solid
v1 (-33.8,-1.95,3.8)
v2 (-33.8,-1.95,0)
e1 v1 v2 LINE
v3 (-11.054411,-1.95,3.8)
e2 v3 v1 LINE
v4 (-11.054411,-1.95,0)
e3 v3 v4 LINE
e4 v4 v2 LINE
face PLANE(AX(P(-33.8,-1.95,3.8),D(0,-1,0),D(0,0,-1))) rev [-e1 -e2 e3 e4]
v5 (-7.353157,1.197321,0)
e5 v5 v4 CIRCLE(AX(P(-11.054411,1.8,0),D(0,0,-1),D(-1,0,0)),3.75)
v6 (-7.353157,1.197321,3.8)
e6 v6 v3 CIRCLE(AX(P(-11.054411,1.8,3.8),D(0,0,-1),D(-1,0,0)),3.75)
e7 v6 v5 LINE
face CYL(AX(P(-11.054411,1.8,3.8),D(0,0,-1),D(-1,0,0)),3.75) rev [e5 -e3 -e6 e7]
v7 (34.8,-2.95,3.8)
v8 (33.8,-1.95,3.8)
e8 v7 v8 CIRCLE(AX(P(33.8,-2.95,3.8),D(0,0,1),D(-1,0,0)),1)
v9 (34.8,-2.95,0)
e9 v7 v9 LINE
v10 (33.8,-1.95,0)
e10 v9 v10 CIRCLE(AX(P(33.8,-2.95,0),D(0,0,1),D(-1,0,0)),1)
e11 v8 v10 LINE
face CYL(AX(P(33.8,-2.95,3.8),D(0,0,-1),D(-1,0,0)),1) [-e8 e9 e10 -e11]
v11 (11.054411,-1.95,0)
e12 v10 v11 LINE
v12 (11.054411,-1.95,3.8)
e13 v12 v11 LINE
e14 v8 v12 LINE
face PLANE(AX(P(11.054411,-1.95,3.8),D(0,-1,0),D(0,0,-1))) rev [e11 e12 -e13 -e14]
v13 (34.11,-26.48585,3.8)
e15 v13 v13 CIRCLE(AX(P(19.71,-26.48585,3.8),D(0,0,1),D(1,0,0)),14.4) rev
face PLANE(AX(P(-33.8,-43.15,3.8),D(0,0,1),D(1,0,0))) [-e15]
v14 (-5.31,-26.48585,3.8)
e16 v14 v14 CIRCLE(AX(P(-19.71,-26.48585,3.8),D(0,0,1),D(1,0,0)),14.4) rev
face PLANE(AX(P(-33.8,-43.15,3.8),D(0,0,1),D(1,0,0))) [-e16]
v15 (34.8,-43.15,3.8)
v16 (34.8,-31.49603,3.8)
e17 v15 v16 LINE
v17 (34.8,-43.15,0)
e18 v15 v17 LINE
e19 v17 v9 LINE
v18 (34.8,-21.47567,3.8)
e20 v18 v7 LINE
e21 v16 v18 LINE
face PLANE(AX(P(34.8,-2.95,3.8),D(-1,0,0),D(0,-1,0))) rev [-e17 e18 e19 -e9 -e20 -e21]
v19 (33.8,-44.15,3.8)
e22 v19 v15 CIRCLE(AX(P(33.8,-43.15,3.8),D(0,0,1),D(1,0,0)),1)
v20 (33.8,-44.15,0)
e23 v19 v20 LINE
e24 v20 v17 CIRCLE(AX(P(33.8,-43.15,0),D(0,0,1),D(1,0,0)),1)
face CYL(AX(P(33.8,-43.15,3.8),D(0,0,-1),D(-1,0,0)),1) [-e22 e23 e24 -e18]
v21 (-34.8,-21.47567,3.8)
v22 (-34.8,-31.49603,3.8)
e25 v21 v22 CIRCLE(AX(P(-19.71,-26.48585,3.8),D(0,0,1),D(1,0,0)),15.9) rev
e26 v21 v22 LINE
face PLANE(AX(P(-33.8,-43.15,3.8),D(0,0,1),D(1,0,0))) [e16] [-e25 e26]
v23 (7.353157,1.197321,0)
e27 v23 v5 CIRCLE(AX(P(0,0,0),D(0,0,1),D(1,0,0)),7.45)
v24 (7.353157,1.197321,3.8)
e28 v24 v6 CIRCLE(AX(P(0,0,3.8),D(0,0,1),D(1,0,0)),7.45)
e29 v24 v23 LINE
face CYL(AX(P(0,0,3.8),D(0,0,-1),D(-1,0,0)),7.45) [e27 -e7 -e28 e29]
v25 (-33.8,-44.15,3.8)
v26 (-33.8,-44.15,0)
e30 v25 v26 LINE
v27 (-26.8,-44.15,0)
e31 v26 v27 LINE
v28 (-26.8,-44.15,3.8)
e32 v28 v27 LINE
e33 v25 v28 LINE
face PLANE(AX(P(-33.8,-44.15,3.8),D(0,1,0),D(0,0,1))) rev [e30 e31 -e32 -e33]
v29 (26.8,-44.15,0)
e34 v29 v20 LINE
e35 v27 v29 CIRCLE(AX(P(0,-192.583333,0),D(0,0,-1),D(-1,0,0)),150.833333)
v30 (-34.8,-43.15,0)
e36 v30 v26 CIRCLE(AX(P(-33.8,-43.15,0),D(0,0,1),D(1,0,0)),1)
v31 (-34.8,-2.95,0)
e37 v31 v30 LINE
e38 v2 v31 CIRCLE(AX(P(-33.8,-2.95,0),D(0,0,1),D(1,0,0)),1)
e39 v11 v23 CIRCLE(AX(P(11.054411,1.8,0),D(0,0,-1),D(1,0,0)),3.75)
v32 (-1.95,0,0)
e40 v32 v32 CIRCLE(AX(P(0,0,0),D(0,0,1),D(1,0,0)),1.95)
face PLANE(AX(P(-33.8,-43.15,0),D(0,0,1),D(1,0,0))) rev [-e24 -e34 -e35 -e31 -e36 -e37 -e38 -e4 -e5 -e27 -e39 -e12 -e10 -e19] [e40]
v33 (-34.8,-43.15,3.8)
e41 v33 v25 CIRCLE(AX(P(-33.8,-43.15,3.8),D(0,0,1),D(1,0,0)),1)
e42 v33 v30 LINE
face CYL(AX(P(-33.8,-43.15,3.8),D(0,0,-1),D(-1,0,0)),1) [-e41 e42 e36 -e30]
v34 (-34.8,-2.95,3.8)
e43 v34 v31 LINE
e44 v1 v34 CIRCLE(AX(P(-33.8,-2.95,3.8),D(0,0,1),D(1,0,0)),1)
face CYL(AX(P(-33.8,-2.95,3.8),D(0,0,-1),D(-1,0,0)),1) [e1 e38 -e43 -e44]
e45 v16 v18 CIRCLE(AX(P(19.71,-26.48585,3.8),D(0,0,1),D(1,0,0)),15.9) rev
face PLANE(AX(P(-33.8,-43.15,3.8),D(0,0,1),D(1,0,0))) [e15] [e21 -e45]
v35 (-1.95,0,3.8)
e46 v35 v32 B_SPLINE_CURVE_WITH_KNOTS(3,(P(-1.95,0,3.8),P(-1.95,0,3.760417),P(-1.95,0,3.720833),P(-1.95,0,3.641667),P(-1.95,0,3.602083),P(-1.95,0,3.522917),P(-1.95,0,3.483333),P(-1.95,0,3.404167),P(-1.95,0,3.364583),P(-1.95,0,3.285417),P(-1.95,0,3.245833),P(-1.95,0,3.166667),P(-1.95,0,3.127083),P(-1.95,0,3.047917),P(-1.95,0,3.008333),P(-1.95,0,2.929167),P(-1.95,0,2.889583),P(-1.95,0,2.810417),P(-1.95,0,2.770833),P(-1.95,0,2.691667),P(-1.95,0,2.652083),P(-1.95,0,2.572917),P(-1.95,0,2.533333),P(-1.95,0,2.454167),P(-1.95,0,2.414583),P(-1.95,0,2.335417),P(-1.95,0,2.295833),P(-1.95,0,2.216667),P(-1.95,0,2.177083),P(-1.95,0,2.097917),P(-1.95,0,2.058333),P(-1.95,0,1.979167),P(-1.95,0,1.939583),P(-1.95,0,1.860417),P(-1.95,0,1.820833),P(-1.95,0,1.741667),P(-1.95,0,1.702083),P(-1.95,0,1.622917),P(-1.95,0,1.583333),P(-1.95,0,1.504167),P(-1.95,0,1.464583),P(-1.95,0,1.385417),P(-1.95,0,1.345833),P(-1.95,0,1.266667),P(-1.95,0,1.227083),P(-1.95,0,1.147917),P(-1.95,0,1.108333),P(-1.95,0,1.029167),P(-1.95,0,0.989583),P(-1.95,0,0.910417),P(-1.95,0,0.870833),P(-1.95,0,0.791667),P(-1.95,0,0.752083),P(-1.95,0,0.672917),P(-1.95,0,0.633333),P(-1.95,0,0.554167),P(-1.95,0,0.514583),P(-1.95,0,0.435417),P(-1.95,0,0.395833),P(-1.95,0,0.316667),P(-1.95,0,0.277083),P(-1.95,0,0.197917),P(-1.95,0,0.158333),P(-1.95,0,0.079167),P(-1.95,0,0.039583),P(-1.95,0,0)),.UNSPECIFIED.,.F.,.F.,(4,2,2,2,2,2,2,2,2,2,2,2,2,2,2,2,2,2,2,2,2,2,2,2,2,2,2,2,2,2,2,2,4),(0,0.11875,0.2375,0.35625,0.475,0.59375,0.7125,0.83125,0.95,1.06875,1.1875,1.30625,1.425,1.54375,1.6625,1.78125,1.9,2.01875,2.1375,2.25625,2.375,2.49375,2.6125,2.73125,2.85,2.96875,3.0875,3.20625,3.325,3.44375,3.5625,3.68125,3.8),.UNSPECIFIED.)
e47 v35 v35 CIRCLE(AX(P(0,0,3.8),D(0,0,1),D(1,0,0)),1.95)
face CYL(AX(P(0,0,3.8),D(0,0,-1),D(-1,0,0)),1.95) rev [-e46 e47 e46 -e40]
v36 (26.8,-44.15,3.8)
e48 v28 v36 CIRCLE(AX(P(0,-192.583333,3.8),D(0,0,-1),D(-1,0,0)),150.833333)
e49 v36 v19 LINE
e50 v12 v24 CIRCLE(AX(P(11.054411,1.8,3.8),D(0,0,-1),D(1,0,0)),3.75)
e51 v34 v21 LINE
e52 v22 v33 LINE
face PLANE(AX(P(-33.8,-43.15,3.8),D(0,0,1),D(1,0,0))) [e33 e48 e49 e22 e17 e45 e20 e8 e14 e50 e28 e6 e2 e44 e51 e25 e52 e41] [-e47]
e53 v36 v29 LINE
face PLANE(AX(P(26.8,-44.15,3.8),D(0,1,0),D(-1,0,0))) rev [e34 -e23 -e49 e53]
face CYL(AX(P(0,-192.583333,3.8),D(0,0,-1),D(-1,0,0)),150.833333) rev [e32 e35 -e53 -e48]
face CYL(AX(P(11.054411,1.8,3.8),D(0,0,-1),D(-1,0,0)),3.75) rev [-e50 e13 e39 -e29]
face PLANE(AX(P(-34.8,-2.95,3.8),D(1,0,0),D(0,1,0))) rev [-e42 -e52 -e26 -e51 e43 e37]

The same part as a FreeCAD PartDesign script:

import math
import FreeCAD as App
import Part
import Sketcher

doc = App.newDocument("Part")
params = doc.addObject("Spreadsheet::Sheet", "Params")
for row, (alias, value) in enumerate([
    ("sketch1_radius", "1 mm"),
    ("sketch1_diameter", "3.9 mm"),
    ("sketch1_width", "7 mm"),
    ("sketch1_radius2", "3.75 mm"),
    ("sketch1_radius3", "7.45 mm"),
    ("pad1_length", "3.8 mm"),
], start=1):
    params.set(f"A{row}", alias)
    params.set(f"B{row}", "=" + value)
    params.setAlias(f"B{row}", alias)

body = doc.addObject("PartDesign::Body", "Body")

sketch1 = body.newObject("Sketcher::SketchObject", "Sketch")
sketch1.AttachmentSupport = (doc.getObject("XY_Plane"), [""])
sketch1.MapMode = "FlatFace"
sketch1.addGeometry([
    Part.LineSegment(App.Vector(26.8, -44.1, 0), App.Vector(33.8, -44.1, 0)),
    Part.ArcOfCircle(Part.Circle(App.Vector(33.8, -43.1, 0), App.Vector(0, 0, 1), 1), math.radians(-90), math.radians(0)),
    Part.LineSegment(App.Vector(34.8, -43.1, 0), App.Vector(34.8, -3, 0)),
    Part.ArcOfCircle(Part.Circle(App.Vector(33.8, -3, 0), App.Vector(0, 0, 1), 1), math.radians(0), math.radians(90)),
    Part.LineSegment(App.Vector(33.8, -1.9, 0), App.Vector(11.1, -1.9, 0)),
    Part.ArcOfCircle(Part.Circle(App.Vector(11.1, 1.8, 0), App.Vector(0, 0, 1), 3.8), math.radians(-171), math.radians(-90)),
    Part.ArcOfCircle(Part.Circle(App.Vector(0, 0, 0), App.Vector(0, 0, 1), 7.5), math.radians(9), math.radians(171)),
    Part.ArcOfCircle(Part.Circle(App.Vector(-11.1, 1.8, 0), App.Vector(0, 0, 1), 3.8), math.radians(-90), math.radians(-9)),
    Part.LineSegment(App.Vector(-11.1, -1.9, 0), App.Vector(-33.8, -1.9, 0)),
    Part.ArcOfCircle(Part.Circle(App.Vector(-33.8, -3, 0), App.Vector(0, 0, 1), 1), math.radians(90), math.radians(180)),
    Part.LineSegment(App.Vector(-34.8, -3, 0), App.Vector(-34.8, -43.1, 0)),
    Part.ArcOfCircle(Part.Circle(App.Vector(-33.8, -43.1, 0), App.Vector(0, 0, 1), 1), math.radians(-180), math.radians(-90)),
    Part.LineSegment(App.Vector(-33.8, -44.1, 0), App.Vector(-26.8, -44.1, 0)),
    Part.ArcOfCircle(Part.Circle(App.Vector(0, -192.6, 0), App.Vector(0, 0, 1), 150.8), math.radians(80), math.radians(100)),
    Part.Circle(App.Vector(0, 0, 0), App.Vector(0, 0, 1), 1.9),
], False)
sketch1.addConstraint([
    Sketcher.Constraint("Tangent", 0, 2, 1, 1),
    Sketcher.Constraint("Tangent", 1, 2, 2, 1),
    Sketcher.Constraint("Tangent", 2, 2, 3, 1),
    Sketcher.Constraint("Tangent", 3, 2, 4, 1),
    Sketcher.Constraint("Tangent", 4, 2, 5, 2),
    Sketcher.Constraint("Tangent", 5, 1, 6, 1),
    Sketcher.Constraint("Tangent", 6, 2, 7, 2),
    Sketcher.Constraint("Tangent", 7, 1, 8, 1),
    Sketcher.Constraint("Tangent", 8, 2, 9, 1),
    Sketcher.Constraint("Tangent", 9, 2, 10, 1),
    Sketcher.Constraint("Tangent", 10, 2, 11, 1),
    Sketcher.Constraint("Tangent", 11, 2, 12, 1),
    Sketcher.Constraint("Coincident", 12, 2, 13, 2),
    Sketcher.Constraint("Coincident", 13, 1, 0, 1),
    Sketcher.Constraint("Horizontal", 0),
    Sketcher.Constraint("Vertical", 2),
    Sketcher.Constraint("Horizontal", 4),
    Sketcher.Constraint("Horizontal", 8),
    Sketcher.Constraint("Vertical", 10),
    Sketcher.Constraint("Horizontal", 12),
    Sketcher.Constraint("Coincident", 6, 3, -1, 1),
    Sketcher.Constraint("Coincident", 14, 3, -1, 1),
    Sketcher.Constraint("Equal", 1, 3),
    Sketcher.Constraint("Equal", 5, 7),
    Sketcher.Constraint("Equal", 3, 9),
    Sketcher.Constraint("Equal", 9, 11),
    Sketcher.Constraint("Symmetric", 3, 3, 9, 3, -2),
    Sketcher.Constraint("Symmetric", 12, 2, 13, 1, -2),
    Sketcher.Constraint("Radius", 1, 1.0),
    Sketcher.Constraint("Diameter", 14, 3.9),
    Sketcher.Constraint("DistanceX", 0, 1, 0, 2, 7.0),
    Sketcher.Constraint("Radius", 5, 3.75),
    Sketcher.Constraint("Radius", 6, 7.45),
    Sketcher.Constraint("DistanceY", 2, 1, 2, 2, 40.2),
    Sketcher.Constraint("DistanceX", -1, 1, 1, 3, 33.8),
    Sketcher.Constraint("DistanceY", -1, 1, 5, 3, 1.8),
    Sketcher.Constraint("Radius", 13, 150.833333),
])
sketch1.setExpression("Constraints[28]", "Params.sketch1_radius")
sketch1.setExpression("Constraints[29]", "Params.sketch1_diameter")
sketch1.setExpression("Constraints[30]", "Params.sketch1_width")
sketch1.setExpression("Constraints[31]", "Params.sketch1_radius2")
sketch1.setExpression("Constraints[32]", "Params.sketch1_radius3")
pad1 = body.newObject("PartDesign::Pad", "Pad")
pad1.Profile = sketch1
pad1.setExpression("Length", "Params.pad1_length")

doc.recompute()
